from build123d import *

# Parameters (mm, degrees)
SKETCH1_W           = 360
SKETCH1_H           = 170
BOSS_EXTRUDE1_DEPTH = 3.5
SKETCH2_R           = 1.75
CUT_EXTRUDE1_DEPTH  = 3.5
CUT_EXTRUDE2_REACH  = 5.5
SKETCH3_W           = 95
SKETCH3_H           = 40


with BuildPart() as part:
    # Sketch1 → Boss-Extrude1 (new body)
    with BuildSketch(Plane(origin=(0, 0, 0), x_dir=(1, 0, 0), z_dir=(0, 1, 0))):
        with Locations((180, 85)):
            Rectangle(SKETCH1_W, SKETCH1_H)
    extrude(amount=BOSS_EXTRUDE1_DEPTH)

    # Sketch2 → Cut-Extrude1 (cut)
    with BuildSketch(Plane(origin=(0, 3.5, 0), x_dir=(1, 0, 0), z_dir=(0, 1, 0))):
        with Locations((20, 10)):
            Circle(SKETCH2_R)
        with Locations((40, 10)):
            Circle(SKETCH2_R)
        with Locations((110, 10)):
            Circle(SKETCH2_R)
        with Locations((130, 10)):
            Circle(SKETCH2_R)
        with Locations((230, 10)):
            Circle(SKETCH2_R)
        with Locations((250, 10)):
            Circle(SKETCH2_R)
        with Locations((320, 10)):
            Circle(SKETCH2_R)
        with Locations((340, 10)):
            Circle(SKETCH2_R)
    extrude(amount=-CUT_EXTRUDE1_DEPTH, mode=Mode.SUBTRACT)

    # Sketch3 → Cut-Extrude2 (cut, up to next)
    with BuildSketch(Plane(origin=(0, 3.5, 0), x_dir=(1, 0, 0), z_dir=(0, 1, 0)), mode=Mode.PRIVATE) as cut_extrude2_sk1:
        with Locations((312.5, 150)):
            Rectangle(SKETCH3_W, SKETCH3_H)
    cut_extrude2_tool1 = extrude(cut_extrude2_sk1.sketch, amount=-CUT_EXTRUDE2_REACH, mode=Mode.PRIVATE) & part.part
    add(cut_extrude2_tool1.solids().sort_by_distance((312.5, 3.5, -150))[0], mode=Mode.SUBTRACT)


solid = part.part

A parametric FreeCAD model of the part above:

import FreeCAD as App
import Part
import Sketcher

V = App.Vector

doc = App.newDocument("Part")
body = doc.addObject("PartDesign::Body", "Body")

sketch1 = body.newObject("Sketcher::SketchObject", "Sketch")
sketch1.AttachmentSupport = (doc.getObject("XZ_Plane"), [""])
sketch1.MapMode = "FlatFace"
sketch1.addGeometry(Part.LineSegment(V(0, -170, 0), V(0, 0, 0)), False)
sketch1.addGeometry(Part.LineSegment(V(0, 0, 0), V(360, 0, 0)), False)
sketch1.addGeometry(Part.LineSegment(V(360, 0, 0), V(360, -170, 0)), False)
sketch1.addGeometry(Part.LineSegment(V(360, -170, 0), V(0, -170, 0)), False)
sketch1.addConstraint(Sketcher.Constraint("Coincident", 0, 2, 1, 1))
sketch1.addConstraint(Sketcher.Constraint("Coincident", 1, 2, 2, 1))
sketch1.addConstraint(Sketcher.Constraint("Coincident", 2, 2, 3, 1))
sketch1.addConstraint(Sketcher.Constraint("Coincident", 3, 2, 0, 1))
sketch1.addConstraint(Sketcher.Constraint("Vertical", 0))
sketch1.addConstraint(Sketcher.Constraint("Horizontal", 1))
sketch1.addConstraint(Sketcher.Constraint("Vertical", 2))
sketch1.addConstraint(Sketcher.Constraint("Horizontal", 3))
sketch1.addConstraint(Sketcher.Constraint("Coincident", 0, 2, -1, 1))
sketch1.addConstraint(Sketcher.Constraint("DistanceX", 1, 1, 1, 2, 360.0))
sketch1.addConstraint(Sketcher.Constraint("DistanceY", 0, 1, 0, 2, 170.0))
pad1 = body.newObject("PartDesign::Pad", "Pad")
pad1.Profile = sketch1
pad1.Length = 3.5
pad1.Reversed = True

sketch2 = body.newObject("Sketcher::SketchObject", "Sketch001")
sketch2.AttachmentSupport = (doc.getObject("XZ_Plane"), [""])
sketch2.MapMode = "FlatFace"
sketch2.AttachmentOffset = App.Placement(V(0, 0, -3.5), App.Rotation())
sketch2.addGeometry(Part.Circle(V(20, -10, 0), V(0, 0, 1), 1.8), False)
sketch2.addGeometry(Part.Circle(V(40, -10, 0), V(0, 0, 1), 1.8), False)
sketch2.addGeometry(Part.Circle(V(110, -10, 0), V(0, 0, 1), 1.8), False)
sketch2.addGeometry(Part.Circle(V(130, -10, 0), V(0, 0, 1), 1.8), False)
sketch2.addGeometry(Part.Circle(V(230, -10, 0), V(0, 0, 1), 1.8), False)
sketch2.addGeometry(Part.Circle(V(250, -10, 0), V(0, 0, 1), 1.8), False)
sketch2.addGeometry(Part.Circle(V(320, -10, 0), V(0, 0, 1), 1.8), False)
sketch2.addGeometry(Part.Circle(V(340, -10, 0), V(0, 0, 1), 1.8), False)
sketch2.addConstraint(Sketcher.Constraint("Equal", 0, 1))
sketch2.addConstraint(Sketcher.Constraint("Equal", 1, 2))
sketch2.addConstraint(Sketcher.Constraint("Equal", 2, 3))
sketch2.addConstraint(Sketcher.Constraint("Equal", 3, 4))
sketch2.addConstraint(Sketcher.Constraint("Equal", 4, 5))
sketch2.addConstraint(Sketcher.Constraint("Equal", 5, 6))
sketch2.addConstraint(Sketcher.Constraint("Equal", 6, 7))
sketch2.addConstraint(Sketcher.Constraint("Horizontal", 0, 3, 1, 3))
sketch2.addConstraint(Sketcher.Constraint("Horizontal", 1, 3, 2, 3))
sketch2.addConstraint(Sketcher.Constraint("Horizontal", 2, 3, 3, 3))
sketch2.addConstraint(Sketcher.Constraint("Horizontal", 3, 3, 4, 3))
sketch2.addConstraint(Sketcher.Constraint("Horizontal", 4, 3, 5, 3))
sketch2.addConstraint(Sketcher.Constraint("Horizontal", 5, 3, 6, 3))
sketch2.addConstraint(Sketcher.Constraint("Horizontal", 6, 3, 7, 3))
sketch2.addConstraint(Sketcher.Constraint("Diameter", 0, 3.5))
sketch2.addConstraint(Sketcher.Constraint("DistanceX", -1, 1, 0, 3, 20.0))
sketch2.addConstraint(Sketcher.Constraint("DistanceY", 0, 3, -1, 1, 10.0))
sketch2.addConstraint(Sketcher.Constraint("DistanceX", -1, 1, 1, 3, 40.0))
sketch2.addConstraint(Sketcher.Constraint("DistanceX", -1, 1, 2, 3, 110.0))
sketch2.addConstraint(Sketcher.Constraint("DistanceX", -1, 1, 3, 3, 130.0))
sketch2.addConstraint(Sketcher.Constraint("DistanceX", -1, 1, 4, 3, 230.0))
sketch2.addConstraint(Sketcher.Constraint("DistanceX", -1, 1, 5, 3, 250.0))
sketch2.addConstraint(Sketcher.Constraint("DistanceX", -1, 1, 6, 3, 320.0))
sketch2.addConstraint(Sketcher.Constraint("DistanceX", -1, 1, 7, 3, 340.0))
pocket1 = body.newObject("PartDesign::Pocket", "Pocket")
pocket1.Profile = sketch2
pocket1.Length = 3.5
pocket1.Reversed = True

sketch3 = body.newObject("Sketcher::SketchObject", "Sketch002")
sketch3.AttachmentSupport = (doc.getObject("XZ_Plane"), [""])
sketch3.MapMode = "FlatFace"
sketch3.AttachmentOffset = App.Placement(V(0, 0, -3.5), App.Rotation())
sketch3.addGeometry(Part.LineSegment(V(265, -170, 0), V(265, -130, 0)), False)
sketch3.addGeometry(Part.LineSegment(V(265, -130, 0), V(360, -130, 0)), False)
sketch3.addGeometry(Part.LineSegment(V(360, -130, 0), V(360, -170, 0)), False)
sketch3.addGeometry(Part.LineSegment(V(360, -170, 0), V(265, -170, 0)), False)
sketch3.addConstraint(Sketcher.Constraint("Coincident", 0, 2, 1, 1))
sketch3.addConstraint(Sketcher.Constraint("Coincident", 1, 2, 2, 1))
sketch3.addConstraint(Sketcher.Constraint("Coincident", 2, 2, 3, 1))
sketch3.addConstraint(Sketcher.Constraint("Coincident", 3, 2, 0, 1))
sketch3.addConstraint(Sketcher.Constraint("Vertical", 0))
sketch3.addConstraint(Sketcher.Constraint("Horizontal", 1))
sketch3.addConstraint(Sketcher.Constraint("Vertical", 2))
sketch3.addConstraint(Sketcher.Constraint("Horizontal", 3))
sketch3.addConstraint(Sketcher.Constraint("DistanceX", 1, 1, 1, 2, 95.0))
sketch3.addConstraint(Sketcher.Constraint("DistanceY", 0, 1, 0, 2, 40.0))
sketch3.addConstraint(Sketcher.Constraint("DistanceX", -1, 1, 0, 2, 265.0))
sketch3.addConstraint(Sketcher.Constraint("DistanceY", 0, 2, -1, 1, 130.0))
pocket2 = body.newObject("PartDesign::Pocket", "Pocket001")
pocket2.Profile = sketch3
pocket2.Type = "UpToFirst"
pocket2.Reversed = True

doc.recompute()
